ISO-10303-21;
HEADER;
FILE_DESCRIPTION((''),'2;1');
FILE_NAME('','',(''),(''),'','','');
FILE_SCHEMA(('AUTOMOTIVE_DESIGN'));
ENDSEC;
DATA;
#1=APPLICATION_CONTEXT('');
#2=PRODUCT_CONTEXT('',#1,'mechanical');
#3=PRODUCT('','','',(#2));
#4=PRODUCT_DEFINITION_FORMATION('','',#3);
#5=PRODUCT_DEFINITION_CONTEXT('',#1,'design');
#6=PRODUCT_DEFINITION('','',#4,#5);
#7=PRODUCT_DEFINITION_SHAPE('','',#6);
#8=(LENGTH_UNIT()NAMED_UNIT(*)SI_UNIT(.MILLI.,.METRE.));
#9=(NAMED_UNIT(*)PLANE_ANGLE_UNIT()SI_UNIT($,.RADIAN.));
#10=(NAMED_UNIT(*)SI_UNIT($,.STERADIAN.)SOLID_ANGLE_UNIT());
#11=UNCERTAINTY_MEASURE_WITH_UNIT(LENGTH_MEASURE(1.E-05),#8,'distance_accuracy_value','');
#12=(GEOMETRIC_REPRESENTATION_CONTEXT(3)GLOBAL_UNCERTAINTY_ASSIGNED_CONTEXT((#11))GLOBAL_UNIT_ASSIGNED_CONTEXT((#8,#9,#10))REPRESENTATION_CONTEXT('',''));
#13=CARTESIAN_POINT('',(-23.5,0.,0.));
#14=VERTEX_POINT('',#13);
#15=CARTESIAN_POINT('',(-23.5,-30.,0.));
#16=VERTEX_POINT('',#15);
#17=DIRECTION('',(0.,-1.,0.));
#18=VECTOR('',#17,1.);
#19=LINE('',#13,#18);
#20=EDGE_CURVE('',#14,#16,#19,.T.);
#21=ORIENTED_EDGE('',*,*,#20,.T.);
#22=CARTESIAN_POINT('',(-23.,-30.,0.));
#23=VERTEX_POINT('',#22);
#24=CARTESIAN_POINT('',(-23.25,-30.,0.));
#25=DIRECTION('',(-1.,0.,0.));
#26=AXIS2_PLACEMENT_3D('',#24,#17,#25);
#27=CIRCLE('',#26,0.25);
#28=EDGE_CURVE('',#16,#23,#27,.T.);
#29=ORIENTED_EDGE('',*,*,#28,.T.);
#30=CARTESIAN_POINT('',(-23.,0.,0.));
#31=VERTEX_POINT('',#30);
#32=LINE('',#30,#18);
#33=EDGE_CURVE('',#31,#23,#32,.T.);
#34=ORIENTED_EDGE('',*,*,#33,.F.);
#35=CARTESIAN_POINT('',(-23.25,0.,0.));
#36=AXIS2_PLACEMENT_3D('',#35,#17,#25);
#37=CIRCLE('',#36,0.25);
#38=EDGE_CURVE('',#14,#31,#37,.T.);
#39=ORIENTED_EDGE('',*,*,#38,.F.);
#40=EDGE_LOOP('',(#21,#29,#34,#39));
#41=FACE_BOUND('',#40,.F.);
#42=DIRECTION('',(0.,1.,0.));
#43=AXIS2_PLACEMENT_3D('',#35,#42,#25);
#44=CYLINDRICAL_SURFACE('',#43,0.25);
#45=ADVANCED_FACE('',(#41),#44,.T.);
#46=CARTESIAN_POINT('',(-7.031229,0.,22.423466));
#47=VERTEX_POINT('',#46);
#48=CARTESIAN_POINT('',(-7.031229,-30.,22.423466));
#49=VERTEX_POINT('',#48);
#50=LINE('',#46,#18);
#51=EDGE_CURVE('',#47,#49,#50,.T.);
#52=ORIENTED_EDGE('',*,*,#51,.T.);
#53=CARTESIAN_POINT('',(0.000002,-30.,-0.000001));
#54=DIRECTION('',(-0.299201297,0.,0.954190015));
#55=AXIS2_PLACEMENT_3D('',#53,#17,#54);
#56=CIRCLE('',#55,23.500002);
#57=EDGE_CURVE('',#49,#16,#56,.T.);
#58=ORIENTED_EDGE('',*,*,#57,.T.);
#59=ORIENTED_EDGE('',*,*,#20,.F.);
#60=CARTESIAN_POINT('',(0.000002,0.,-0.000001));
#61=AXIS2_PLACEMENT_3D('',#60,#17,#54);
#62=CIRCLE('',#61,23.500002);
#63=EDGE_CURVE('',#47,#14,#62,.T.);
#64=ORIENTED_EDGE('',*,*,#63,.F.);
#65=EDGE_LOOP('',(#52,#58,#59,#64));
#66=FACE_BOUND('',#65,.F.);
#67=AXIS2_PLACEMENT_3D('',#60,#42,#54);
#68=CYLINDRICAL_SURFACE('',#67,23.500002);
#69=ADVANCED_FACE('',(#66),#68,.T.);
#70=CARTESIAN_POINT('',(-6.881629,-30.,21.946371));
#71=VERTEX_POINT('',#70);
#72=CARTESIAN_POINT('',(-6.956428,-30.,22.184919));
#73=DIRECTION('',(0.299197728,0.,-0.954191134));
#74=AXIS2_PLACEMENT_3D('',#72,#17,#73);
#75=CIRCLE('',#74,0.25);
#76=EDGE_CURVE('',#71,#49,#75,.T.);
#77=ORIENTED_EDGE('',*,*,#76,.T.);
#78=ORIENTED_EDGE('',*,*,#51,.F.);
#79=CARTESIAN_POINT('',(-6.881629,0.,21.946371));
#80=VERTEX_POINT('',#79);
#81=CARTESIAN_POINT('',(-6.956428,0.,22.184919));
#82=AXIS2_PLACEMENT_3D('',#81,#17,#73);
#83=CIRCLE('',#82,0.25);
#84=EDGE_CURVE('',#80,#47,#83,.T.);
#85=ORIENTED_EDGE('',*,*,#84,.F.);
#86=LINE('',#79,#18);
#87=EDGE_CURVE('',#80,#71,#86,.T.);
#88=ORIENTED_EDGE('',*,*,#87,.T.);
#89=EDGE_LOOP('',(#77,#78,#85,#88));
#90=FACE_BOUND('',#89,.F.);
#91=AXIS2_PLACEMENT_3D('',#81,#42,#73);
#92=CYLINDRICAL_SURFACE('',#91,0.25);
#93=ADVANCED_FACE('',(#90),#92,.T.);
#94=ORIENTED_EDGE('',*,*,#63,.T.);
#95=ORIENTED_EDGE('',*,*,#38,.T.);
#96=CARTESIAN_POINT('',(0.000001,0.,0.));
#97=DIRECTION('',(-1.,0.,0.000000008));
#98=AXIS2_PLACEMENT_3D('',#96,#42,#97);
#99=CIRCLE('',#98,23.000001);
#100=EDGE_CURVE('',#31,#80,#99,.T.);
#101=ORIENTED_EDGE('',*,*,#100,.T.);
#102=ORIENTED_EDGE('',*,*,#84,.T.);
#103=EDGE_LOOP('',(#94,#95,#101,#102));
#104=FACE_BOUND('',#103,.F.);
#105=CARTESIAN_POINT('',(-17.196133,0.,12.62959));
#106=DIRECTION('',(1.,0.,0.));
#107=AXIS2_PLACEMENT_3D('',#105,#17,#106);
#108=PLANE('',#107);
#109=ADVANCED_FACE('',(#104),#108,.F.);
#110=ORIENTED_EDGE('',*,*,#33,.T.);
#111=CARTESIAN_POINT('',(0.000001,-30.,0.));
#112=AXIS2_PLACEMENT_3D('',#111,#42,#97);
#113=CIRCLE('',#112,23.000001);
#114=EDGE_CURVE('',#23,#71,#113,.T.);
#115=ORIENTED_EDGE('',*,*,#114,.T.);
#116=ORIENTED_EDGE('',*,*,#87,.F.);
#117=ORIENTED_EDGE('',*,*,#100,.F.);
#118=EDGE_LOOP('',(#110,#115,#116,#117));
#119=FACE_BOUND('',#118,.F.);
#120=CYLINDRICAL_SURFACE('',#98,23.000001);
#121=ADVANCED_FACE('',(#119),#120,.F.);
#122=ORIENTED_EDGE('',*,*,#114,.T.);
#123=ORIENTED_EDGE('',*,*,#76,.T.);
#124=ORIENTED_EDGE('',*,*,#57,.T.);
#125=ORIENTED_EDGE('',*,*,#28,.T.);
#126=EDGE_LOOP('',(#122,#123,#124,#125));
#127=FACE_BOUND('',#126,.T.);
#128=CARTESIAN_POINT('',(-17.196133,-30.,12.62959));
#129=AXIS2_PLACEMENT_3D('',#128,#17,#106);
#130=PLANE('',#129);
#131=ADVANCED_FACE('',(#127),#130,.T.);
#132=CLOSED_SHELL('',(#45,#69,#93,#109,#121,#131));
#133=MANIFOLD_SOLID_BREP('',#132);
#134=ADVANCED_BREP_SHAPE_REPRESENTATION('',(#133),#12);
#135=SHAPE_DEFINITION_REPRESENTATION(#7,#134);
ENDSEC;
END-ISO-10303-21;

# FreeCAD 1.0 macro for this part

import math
import FreeCAD as App
import Part
import Sketcher

doc = App.newDocument("Part")
body = doc.addObject("PartDesign::Body", "Body")

# Sketch on XZ plane
sketch1 = doc.addObject("Sketcher::SketchObject", "Sketch")
body.addObject(sketch1)
sketch1.AttachmentSupport = (doc.XZ_Plane, [""])
sketch1.MapMode = "FlatFace"
sketch1.addGeometry([
    Part.ArcOfCircle(Part.Circle(App.Vector(0.000001, 0, 0), App.Vector(0, 0, 1), 23.000001), math.radians(107.409637), math.radians(180)),
    Part.ArcOfCircle(Part.Circle(App.Vector(-6.956428, 22.184919, 0), App.Vector(0, 0, 1), 0.25), math.radians(-72.590577), math.radians(107.409711)),
    Part.ArcOfCircle(Part.Circle(App.Vector(0.000002, -0.000001, 0), App.Vector(0, 0, 1), 23.500002), math.radians(107.409637), math.radians(179.999997)),
    Part.ArcOfCircle(Part.Circle(App.Vector(-23.25, 0, 0), App.Vector(0, 0, 1), 0.25), math.radians(180), math.radians(360)),
], False)
sketch1.addConstraint([
    Sketcher.Constraint("Coincident", 0, 1, 1, 1),
    Sketcher.Constraint("Coincident", 1, 2, 2, 1),
    Sketcher.Constraint("Coincident", 2, 2, 3, 1),
    Sketcher.Constraint("Coincident", 3, 2, 0, 2),
    Sketcher.Constraint("Coincident", 0, 3, -1, 1),
    Sketcher.Constraint("Coincident", 2, 3, -1, 1),
    Sketcher.Constraint("PointOnObject", 3, 3, -1),
    Sketcher.Constraint("PointOnObject", 2, 2, -1),
    Sketcher.Constraint("PointOnObject", 3, 2, -1),
    Sketcher.Constraint("Radius", 0, 23.000001),
    Sketcher.Constraint("Radius", 1, 0.25),
    Sketcher.Constraint("DistanceX", 1, 3, 0, 1, 0.074799),
    Sketcher.Constraint("DistanceX", 1, 2, 1, 3, 0.074801),
    Sketcher.Constraint("DistanceX", 1, 3, -1, 1, 6.956428),
])
pad1 = doc.addObject("PartDesign::Pad", "Pad")
body.addObject(pad1)
pad1.Profile = sketch1
pad1.Length = 30

doc.recompute()
